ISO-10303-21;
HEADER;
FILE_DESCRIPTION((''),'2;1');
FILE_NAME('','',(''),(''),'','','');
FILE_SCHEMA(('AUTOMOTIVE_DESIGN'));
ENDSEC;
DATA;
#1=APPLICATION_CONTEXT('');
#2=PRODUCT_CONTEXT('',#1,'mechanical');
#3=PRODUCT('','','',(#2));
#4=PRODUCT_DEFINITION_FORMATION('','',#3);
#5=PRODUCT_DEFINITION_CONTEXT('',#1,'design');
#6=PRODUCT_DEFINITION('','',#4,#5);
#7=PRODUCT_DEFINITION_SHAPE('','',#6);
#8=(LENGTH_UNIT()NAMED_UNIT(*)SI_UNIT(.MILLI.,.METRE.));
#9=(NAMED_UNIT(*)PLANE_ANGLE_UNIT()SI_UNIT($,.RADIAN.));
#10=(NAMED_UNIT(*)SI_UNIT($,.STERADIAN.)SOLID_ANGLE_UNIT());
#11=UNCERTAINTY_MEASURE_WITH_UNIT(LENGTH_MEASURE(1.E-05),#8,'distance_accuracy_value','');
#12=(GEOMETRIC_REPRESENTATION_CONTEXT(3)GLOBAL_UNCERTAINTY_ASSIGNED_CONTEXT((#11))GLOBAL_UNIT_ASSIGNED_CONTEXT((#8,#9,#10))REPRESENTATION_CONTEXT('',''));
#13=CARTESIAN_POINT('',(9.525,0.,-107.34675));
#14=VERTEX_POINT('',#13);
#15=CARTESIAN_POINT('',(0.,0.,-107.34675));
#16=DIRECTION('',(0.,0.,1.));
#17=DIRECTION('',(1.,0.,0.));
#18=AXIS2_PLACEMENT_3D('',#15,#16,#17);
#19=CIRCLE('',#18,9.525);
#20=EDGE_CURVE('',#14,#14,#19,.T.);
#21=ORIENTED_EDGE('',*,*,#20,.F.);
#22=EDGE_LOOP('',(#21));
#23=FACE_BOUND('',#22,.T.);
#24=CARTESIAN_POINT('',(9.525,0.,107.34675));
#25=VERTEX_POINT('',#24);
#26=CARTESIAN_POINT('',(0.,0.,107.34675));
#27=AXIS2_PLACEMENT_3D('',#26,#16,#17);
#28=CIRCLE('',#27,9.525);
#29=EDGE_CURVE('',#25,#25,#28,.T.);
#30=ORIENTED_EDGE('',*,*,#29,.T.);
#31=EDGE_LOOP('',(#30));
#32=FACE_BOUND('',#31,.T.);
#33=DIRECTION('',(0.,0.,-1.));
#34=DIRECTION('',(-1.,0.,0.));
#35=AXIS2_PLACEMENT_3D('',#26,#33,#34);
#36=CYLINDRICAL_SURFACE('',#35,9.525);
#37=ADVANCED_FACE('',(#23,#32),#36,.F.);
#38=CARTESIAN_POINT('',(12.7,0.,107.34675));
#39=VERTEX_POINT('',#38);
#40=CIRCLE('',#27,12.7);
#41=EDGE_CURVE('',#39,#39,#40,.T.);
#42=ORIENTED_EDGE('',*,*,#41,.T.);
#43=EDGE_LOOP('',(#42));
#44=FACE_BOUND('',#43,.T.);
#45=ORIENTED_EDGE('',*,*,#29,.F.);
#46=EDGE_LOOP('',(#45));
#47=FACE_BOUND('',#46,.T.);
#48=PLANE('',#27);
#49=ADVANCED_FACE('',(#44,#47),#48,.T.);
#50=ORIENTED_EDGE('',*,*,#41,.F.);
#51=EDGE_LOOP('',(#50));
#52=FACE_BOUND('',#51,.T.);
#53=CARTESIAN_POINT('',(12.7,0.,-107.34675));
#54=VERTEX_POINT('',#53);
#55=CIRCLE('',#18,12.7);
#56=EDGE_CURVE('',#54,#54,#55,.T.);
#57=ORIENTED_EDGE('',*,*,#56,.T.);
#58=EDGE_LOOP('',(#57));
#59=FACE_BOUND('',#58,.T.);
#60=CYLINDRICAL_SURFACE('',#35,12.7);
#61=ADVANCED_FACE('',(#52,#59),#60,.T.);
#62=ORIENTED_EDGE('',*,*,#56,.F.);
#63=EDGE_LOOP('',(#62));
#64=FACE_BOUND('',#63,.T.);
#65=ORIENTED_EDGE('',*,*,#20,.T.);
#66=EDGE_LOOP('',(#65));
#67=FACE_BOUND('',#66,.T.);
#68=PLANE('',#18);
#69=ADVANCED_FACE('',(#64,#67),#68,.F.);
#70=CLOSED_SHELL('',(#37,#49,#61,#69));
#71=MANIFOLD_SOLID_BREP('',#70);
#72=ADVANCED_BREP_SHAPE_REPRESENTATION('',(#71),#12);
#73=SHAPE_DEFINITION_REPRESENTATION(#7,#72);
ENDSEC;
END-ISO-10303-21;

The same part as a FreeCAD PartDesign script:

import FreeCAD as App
import Part
import Sketcher
from FreeCAD import Vector
Q = App.Units.Quantity

doc = App.newDocument("Part")
body = doc.addObject("PartDesign::Body", "Body")

# Sketch on XY plane
sketch1 = body.newObject("Sketcher::SketchObject", "Sketch")
sketch1.AttachmentSupport = (doc.getObject("XY_Plane"), [""])
sketch1.MapMode = "FlatFace"
sketch1.addGeometry([
    Part.Circle(Vector(0, 0, 0), Vector(0, 0, 1), 12.7),
    Part.Circle(Vector(0, 0, 0), Vector(0, 0, 1), 9.525),
], False)
sketch1.addConstraint([
    Sketcher.Constraint("Coincident", 0, 3, -1, 1),
    Sketcher.Constraint("Coincident", 1, 3, -1, 1),
    Sketcher.Constraint("Diameter", 0, Q("1 in")),
    Sketcher.Constraint("Diameter", 1, Q("0.75 in")),
])
pad1 = body.newObject("PartDesign::Pad", "Pad")
pad1.Profile = sketch1
pad1.Length = Q("8.4525 in")
pad1.Midplane = True

doc.recompute()
